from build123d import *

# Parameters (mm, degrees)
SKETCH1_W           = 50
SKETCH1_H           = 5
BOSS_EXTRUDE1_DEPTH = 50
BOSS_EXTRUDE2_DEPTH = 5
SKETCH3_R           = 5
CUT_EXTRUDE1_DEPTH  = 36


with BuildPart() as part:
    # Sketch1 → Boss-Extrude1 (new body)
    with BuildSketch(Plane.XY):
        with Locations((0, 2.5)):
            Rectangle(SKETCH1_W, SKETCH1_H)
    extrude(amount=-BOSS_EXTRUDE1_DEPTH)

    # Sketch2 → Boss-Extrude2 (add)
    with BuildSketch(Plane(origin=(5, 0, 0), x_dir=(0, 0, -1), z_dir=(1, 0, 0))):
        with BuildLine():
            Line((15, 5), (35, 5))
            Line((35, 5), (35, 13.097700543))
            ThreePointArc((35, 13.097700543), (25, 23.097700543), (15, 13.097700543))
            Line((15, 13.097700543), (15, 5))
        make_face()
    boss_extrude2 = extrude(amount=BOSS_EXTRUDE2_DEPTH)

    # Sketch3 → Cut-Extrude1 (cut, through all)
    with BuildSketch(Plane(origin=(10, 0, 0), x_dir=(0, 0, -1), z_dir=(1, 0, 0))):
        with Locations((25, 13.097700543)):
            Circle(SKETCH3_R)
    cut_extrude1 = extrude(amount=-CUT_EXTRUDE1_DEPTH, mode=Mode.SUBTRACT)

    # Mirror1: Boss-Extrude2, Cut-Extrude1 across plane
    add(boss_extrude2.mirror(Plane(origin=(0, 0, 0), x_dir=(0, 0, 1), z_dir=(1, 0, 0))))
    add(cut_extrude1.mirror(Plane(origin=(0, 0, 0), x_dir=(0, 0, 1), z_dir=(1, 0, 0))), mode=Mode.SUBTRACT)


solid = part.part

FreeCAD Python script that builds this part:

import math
import FreeCAD as App
import Part
import Sketcher
from FreeCAD import Vector


def add_polygon(sketch, points):
    """Adds a closed chain of lines whose ends are joined by coincident constraints."""
    first, n = sketch.GeometryCount, len(points)
    for a, b in zip(points, points[1:] + points[:1]):
        sketch.addGeometry(Part.LineSegment(App.Vector(*a, 0), App.Vector(*b, 0)), False)
    for i in range(n):
        sketch.addConstraint(Sketcher.Constraint("Coincident", first + i, 2, first + (i + 1) % n, 1))

doc = App.newDocument("Part")
body = doc.addObject("PartDesign::Body", "Body")

sketch1 = body.newObject("Sketcher::SketchObject", "Sketch")
sketch1.AttachmentSupport = (doc.getObject("XY_Plane"), [""])
sketch1.MapMode = "FlatFace"
add_polygon(sketch1, [(-25, 5), (-25, 0), (25, 0), (25, 5)])
sketch1.addConstraint(Sketcher.Constraint("Vertical", 0))
sketch1.addConstraint(Sketcher.Constraint("Horizontal", 1))
sketch1.addConstraint(Sketcher.Constraint("Vertical", 2))
sketch1.addConstraint(Sketcher.Constraint("Horizontal", 3))
sketch1.addConstraint(Sketcher.Constraint("Symmetric", 0, 2, 1, 2, -1, 1))
sketch1.addConstraint(Sketcher.Constraint("DistanceX", 1, 1, 1, 2, 50.0))
sketch1.addConstraint(Sketcher.Constraint("DistanceY", 0, 2, 0, 1, 5.0))
pad1 = body.newObject("PartDesign::Pad", "Pad")
pad1.Profile = sketch1
pad1.Length = 50
pad1.Reversed = True

sketch2 = body.newObject("Sketcher::SketchObject", "Sketch001")
sketch2.AttachmentSupport = (doc.getObject("YZ_Plane"), [""])
sketch2.MapMode = "FlatFace"
sketch2.AttachmentOffset = App.Placement(Vector(0, 0, 5), App.Rotation())
sketch2.addGeometry(Part.LineSegment(Vector(5, -15, 0), Vector(5, -35, 0)), False)
sketch2.addGeometry(Part.LineSegment(Vector(5, -35, 0), Vector(13.097701, -35, 0)), False)
sketch2.addGeometry(Part.ArcOfCircle(Part.Circle(Vector(13.097701, -25, 0), Vector(0, 0, 1), 10), math.radians(-90), math.radians(90)), False)
sketch2.addGeometry(Part.LineSegment(Vector(13.097701, -15, 0), Vector(5, -15, 0)), False)
sketch2.addConstraint(Sketcher.Constraint("Coincident", 0, 2, 1, 1))
sketch2.addConstraint(Sketcher.Constraint("Tangent", 1, 2, 2, 1))
sketch2.addConstraint(Sketcher.Constraint("Tangent", 2, 2, 3, 1))
sketch2.addConstraint(Sketcher.Constraint("Coincident", 3, 2, 0, 1))
sketch2.addConstraint(Sketcher.Constraint("Vertical", 0))
sketch2.addConstraint(Sketcher.Constraint("Horizontal", 1))
sketch2.addConstraint(Sketcher.Constraint("Horizontal", 3))
sketch2.addConstraint(Sketcher.Constraint("Radius", 2, 10.0))
sketch2.addConstraint(Sketcher.Constraint("DistanceY", 2, 3, -1, 1, 25.0))
sketch2.addConstraint(Sketcher.Constraint("DistanceX", -1, 1, 0, 2, 5.0))
sketch2.addConstraint(Sketcher.Constraint("DistanceX", 1, 1, 1, 2, 8.097701))
pad2 = body.newObject("PartDesign::Pad", "Pad001")
pad2.Profile = sketch2
pad2.Length = 5

sketch3 = body.newObject("Sketcher::SketchObject", "Sketch002")
sketch3.AttachmentSupport = (doc.getObject("YZ_Plane"), [""])
sketch3.MapMode = "FlatFace"
sketch3.AttachmentOffset = App.Placement(Vector(0, 0, 10), App.Rotation())
sketch3.addGeometry(Part.Circle(Vector(13.097701, -25, 0), Vector(0, 0, 1), 5), False)
sketch3.addConstraint(Sketcher.Constraint("Diameter", 0, 10.0))
sketch3.addConstraint(Sketcher.Constraint("DistanceY", 0, 3, -1, 1, 25.0))
sketch3.addConstraint(Sketcher.Constraint("DistanceX", -1, 1, 0, 3, 13.097701))
pocket1 = body.newObject("PartDesign::Pocket", "Pocket")
pocket1.Profile = sketch3
pocket1.Type = "ThroughAll"
doc.recompute()

mirrored = body.newObject("PartDesign::Mirrored", "Mirrored")
mirrored.Originals = [pad2, pocket1]
mirrored.MirrorPlane = (doc.getObject("YZ_Plane"), [""])
body.Tip = mirrored

doc.recompute()
